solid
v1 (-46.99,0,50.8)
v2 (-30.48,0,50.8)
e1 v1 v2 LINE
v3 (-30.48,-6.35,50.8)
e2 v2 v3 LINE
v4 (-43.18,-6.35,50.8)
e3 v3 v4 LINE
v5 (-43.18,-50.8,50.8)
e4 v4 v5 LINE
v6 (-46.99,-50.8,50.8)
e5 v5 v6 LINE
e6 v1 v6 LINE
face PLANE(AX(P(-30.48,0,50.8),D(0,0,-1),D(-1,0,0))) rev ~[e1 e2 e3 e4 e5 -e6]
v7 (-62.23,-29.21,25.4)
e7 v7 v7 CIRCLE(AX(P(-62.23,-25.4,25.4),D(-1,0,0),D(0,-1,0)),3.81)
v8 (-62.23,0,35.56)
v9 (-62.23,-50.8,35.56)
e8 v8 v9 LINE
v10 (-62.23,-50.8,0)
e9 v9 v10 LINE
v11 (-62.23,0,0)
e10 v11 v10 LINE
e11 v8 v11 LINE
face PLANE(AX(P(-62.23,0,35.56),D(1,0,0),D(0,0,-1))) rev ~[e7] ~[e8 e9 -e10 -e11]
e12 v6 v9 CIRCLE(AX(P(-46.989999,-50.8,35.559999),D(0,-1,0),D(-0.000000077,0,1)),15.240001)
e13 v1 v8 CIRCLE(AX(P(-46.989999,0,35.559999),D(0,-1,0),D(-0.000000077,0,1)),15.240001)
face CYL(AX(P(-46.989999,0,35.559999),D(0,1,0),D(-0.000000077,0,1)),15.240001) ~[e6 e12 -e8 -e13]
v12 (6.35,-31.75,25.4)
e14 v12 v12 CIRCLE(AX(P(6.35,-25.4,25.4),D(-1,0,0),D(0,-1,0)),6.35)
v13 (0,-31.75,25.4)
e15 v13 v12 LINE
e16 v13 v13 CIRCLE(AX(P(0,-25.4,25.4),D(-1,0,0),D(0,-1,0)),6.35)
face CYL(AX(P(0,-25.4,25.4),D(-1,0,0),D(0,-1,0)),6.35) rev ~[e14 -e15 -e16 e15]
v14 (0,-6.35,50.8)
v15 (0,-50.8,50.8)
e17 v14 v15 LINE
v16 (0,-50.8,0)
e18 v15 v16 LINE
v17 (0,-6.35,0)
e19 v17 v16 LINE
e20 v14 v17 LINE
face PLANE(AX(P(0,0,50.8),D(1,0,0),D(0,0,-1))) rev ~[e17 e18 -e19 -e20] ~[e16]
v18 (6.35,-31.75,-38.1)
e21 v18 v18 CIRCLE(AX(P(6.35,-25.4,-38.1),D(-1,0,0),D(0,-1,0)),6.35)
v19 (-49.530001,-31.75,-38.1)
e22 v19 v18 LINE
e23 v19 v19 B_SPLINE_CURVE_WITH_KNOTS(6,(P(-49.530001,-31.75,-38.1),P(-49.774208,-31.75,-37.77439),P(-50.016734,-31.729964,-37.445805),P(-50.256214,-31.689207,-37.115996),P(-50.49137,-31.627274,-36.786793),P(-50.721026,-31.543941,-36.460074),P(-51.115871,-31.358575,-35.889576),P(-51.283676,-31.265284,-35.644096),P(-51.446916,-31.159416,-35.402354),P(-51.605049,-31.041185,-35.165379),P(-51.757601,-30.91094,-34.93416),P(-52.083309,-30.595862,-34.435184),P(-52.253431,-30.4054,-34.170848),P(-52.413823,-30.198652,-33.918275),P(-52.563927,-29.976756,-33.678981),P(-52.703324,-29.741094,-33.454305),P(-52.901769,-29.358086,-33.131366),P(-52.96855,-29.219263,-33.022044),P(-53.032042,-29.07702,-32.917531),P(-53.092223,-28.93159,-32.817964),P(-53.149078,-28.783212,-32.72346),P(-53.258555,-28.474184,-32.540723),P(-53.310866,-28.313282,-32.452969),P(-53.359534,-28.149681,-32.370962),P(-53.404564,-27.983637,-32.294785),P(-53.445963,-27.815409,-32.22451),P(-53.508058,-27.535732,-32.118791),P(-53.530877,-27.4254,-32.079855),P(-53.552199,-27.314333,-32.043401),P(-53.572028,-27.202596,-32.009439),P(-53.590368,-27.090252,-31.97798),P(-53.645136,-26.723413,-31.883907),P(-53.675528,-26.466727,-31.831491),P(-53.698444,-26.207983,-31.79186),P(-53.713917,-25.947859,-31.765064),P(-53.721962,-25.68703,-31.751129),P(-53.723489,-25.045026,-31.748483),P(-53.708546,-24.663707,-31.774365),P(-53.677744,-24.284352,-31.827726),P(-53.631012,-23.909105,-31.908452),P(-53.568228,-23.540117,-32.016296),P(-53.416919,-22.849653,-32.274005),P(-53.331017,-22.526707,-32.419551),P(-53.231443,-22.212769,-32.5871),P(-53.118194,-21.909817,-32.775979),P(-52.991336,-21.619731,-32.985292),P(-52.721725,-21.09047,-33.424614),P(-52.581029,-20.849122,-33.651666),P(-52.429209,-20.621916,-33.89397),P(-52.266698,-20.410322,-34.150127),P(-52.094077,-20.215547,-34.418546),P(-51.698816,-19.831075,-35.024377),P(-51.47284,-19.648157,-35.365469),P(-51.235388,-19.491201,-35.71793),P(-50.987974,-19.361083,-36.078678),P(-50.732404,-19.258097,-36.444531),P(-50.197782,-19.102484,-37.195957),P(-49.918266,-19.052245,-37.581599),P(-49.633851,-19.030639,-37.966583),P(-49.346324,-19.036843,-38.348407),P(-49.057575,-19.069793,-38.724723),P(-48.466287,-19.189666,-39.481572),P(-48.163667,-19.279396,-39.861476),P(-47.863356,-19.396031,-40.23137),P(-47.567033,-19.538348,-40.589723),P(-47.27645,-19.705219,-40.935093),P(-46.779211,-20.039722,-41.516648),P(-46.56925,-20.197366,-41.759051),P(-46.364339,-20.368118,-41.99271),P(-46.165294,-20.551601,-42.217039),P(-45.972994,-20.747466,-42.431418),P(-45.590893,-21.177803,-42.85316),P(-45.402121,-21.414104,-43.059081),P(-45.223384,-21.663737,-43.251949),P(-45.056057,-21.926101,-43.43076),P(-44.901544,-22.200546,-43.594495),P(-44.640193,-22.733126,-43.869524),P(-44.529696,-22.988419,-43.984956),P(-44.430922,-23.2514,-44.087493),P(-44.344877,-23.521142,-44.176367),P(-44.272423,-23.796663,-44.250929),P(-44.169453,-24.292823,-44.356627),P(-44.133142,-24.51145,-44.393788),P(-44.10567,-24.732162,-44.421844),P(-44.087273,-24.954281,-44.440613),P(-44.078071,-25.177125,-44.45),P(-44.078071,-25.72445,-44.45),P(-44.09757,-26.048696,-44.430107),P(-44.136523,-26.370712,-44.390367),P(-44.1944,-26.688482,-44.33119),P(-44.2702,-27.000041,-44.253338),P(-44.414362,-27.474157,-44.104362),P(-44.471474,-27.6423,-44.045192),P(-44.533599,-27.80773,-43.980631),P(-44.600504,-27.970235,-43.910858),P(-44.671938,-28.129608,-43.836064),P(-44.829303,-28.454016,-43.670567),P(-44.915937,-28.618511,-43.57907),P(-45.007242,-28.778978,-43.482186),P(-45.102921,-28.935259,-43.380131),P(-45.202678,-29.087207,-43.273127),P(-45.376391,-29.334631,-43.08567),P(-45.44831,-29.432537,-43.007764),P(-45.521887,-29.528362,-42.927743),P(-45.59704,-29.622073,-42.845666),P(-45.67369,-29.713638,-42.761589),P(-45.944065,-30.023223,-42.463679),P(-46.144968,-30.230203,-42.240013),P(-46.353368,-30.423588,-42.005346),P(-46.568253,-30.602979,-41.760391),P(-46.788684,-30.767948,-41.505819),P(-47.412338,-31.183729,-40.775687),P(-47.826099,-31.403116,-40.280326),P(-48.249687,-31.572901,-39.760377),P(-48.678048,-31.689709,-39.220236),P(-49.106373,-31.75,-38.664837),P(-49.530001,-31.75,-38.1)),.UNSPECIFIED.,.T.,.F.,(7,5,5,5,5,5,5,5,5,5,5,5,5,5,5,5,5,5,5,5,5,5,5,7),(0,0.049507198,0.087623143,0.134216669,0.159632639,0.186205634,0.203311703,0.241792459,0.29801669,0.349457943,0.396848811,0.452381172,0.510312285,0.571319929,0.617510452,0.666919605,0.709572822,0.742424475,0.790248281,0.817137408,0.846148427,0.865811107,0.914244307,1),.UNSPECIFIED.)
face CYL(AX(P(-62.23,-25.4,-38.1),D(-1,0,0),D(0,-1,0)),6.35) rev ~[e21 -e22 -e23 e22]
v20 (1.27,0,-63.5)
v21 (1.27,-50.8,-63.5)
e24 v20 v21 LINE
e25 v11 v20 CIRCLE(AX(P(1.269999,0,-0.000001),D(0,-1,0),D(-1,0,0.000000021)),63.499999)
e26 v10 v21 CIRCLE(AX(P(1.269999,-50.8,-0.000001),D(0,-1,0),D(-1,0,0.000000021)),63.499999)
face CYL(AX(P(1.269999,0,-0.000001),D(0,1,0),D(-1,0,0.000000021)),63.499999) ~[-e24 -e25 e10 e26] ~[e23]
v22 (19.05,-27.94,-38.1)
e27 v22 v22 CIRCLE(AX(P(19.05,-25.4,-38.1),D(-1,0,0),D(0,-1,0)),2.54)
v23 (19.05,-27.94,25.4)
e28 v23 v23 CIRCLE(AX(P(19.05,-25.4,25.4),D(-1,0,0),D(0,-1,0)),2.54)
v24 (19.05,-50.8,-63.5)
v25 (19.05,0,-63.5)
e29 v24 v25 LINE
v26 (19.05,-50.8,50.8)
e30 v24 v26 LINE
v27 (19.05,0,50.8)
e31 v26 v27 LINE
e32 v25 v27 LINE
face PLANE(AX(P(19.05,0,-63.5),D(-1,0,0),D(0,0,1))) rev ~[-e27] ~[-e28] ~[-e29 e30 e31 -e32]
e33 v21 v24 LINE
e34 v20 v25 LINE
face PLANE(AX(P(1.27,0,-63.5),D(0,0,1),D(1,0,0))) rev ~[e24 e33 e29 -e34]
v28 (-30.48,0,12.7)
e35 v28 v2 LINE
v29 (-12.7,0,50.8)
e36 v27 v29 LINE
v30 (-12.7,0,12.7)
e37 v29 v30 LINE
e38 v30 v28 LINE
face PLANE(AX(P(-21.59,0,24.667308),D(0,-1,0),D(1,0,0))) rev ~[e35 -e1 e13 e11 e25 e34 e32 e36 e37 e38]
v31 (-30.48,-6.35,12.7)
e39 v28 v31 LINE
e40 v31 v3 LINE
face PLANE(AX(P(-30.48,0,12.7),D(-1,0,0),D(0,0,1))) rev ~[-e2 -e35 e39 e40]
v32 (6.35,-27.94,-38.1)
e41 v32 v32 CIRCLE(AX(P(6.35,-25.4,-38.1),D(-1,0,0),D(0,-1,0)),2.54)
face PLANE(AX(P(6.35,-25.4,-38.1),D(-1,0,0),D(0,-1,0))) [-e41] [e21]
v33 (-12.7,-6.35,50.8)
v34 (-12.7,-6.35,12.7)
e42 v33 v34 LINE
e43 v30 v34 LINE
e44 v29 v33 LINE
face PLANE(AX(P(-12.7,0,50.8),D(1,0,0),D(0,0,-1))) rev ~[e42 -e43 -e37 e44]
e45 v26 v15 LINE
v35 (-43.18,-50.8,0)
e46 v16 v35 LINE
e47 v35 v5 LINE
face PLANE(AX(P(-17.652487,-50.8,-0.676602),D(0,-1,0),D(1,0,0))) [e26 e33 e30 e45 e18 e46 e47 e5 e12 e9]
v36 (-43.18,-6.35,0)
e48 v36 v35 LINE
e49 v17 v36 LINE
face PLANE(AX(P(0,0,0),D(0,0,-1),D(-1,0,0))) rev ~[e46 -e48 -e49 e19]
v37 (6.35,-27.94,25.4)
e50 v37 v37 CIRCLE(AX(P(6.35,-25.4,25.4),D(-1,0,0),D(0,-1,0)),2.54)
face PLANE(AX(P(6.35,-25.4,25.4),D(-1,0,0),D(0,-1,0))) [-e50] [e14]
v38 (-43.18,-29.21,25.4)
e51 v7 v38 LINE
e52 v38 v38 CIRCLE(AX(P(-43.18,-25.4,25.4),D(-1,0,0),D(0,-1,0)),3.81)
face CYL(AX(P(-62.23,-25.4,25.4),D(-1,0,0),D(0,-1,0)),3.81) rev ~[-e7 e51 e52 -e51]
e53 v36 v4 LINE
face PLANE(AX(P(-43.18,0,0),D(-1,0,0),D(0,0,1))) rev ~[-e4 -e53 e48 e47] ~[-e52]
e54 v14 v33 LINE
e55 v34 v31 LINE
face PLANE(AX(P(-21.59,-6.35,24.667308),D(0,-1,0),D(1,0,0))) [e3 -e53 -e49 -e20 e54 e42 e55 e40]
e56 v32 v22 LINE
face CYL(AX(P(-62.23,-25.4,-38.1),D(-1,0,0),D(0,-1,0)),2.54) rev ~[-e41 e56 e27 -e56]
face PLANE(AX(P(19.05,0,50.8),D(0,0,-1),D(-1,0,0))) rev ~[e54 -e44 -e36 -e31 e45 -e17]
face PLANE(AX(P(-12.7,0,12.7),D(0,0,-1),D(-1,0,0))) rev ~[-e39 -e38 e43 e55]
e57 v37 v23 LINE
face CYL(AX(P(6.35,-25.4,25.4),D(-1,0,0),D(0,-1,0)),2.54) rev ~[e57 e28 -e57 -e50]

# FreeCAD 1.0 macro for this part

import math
import FreeCAD as App
import Part
import Sketcher

V = App.Vector
Q = App.Units.Quantity

doc = App.newDocument("Part")
body = doc.addObject("PartDesign::Body", "Body")

# Sketch on XZ plane
sketch1 = body.newObject("Sketcher::SketchObject", "Sketch")
sketch1.AttachmentSupport = (doc.getObject("XZ_Plane"), [""])
sketch1.MapMode = "FlatFace"
sketch1.addGeometry([
    Part.LineSegment(V(0, 50.8, 0), V(0, 0, 0)),  # 0
    Part.LineSegment(V(0, 0, 0), V(-43.18, 0, 0)),  # 1
    Part.LineSegment(V(-43.18, 0, 0), V(-43.18, 50.8, 0)),  # 2
    Part.LineSegment(V(-43.18, 50.8, 0), V(-46.99, 50.8, 0)),  # 3
    Part.ArcOfCircle(Part.Circle(V(-46.989999, 35.559999, 0), V(0, 0, 1), 15.240001), math.radians(90.000004), math.radians(179.999996)),  # 4
    Part.LineSegment(V(-62.23, 35.56, 0), V(-62.23, 0, 0)),  # 5
    Part.ArcOfCircle(Part.Circle(V(1.269999, -0.000001, 0), V(0, 0, 1), 63.499999), math.radians(179.999999), math.radians(270.000001)),  # 6
    Part.LineSegment(V(1.27, -63.5, 0), V(19.05, -63.5, 0)),  # 7
    Part.LineSegment(V(19.05, -63.5, 0), V(19.05, 50.8, 0)),  # 8
    Part.LineSegment(V(19.05, 50.8, 0), V(0, 50.8, 0)),  # 9
], False)
sketch1.addConstraint([
    Sketcher.Constraint("Coincident", 0, 2, 1, 1),
    Sketcher.Constraint("Coincident", 1, 2, 2, 1),
    Sketcher.Constraint("Coincident", 2, 2, 3, 1),
    Sketcher.Constraint("Tangent", 3, 2, 4, 1),
    Sketcher.Constraint("Tangent", 4, 2, 5, 1),
    Sketcher.Constraint("Tangent", 5, 2, 6, 1),
    Sketcher.Constraint("Tangent", 6, 2, 7, 1),
    Sketcher.Constraint("Coincident", 7, 2, 8, 1),
    Sketcher.Constraint("Coincident", 8, 2, 9, 1),
    Sketcher.Constraint("Coincident", 9, 2, 0, 1),
    Sketcher.Constraint("Vertical", 0),
    Sketcher.Constraint("Horizontal", 1),
    Sketcher.Constraint("Vertical", 2),
    Sketcher.Constraint("Horizontal", 3),
    Sketcher.Constraint("Vertical", 5),
    Sketcher.Constraint("Horizontal", 7),
    Sketcher.Constraint("Vertical", 8),
    Sketcher.Constraint("Horizontal", 9),
    Sketcher.Constraint("Coincident", 0, 2, -1, 1),
    Sketcher.Constraint("PointOnObject", 6, 3, -1),
    Sketcher.Constraint("Horizontal", 3, 2, 8, 2),
    Sketcher.Constraint("Radius", 4, Q("0.6 in")),
    Sketcher.Constraint("Radius", 6, Q("2.4999999 in")),
    Sketcher.Constraint("DistanceY", 0, 2, 0, 1, Q("2 in")),
    Sketcher.Constraint("DistanceX", 1, 2, 1, 1, Q("1.7 in")),
    Sketcher.Constraint("DistanceX", 7, 1, 7, 2, Q("0.7 in")),
    Sketcher.Constraint("DistanceX", 3, 2, 3, 1, Q("0.15 in")),
])
pad1 = body.newObject("PartDesign::Pad", "Pad")
pad1.Profile = sketch1
pad1.Length = Q("2 in")

# Sketch on XZ plane
sketch2 = body.newObject("Sketcher::SketchObject", "Sketch001")
sketch2.AttachmentSupport = (doc.getObject("XZ_Plane"), [""])
sketch2.MapMode = "FlatFace"
sketch2.addGeometry([
    Part.LineSegment(V(-12.7, 50.8, 0), V(-12.7, 12.7, 0)),  # 0
    Part.LineSegment(V(-12.7, 12.7, 0), V(-30.48, 12.7, 0)),  # 1
    Part.LineSegment(V(-30.48, 12.7, 0), V(-30.48, 50.8, 0)),  # 2
    Part.LineSegment(V(-30.48, 50.8, 0), V(-46.99, 50.8, 0)),  # 3
    Part.ArcOfCircle(Part.Circle(V(-46.989999, 35.559999, 0), V(0, 0, 1), 15.240001), math.radians(90.000004), math.radians(179.999996)),  # 4
    Part.LineSegment(V(-62.23, 35.56, 0), V(-62.23, 0, 0)),  # 5
    Part.ArcOfCircle(Part.Circle(V(1.269999, -0.000001, 0), V(0, 0, 1), 63.499999), math.radians(179.999999), math.radians(270.000001)),  # 6
    Part.LineSegment(V(1.27, -63.5, 0), V(19.05, -63.5, 0)),  # 7
    Part.LineSegment(V(19.05, -63.5, 0), V(19.05, 50.8, 0)),  # 8
    Part.LineSegment(V(19.05, 50.8, 0), V(-12.7, 50.8, 0)),  # 9
], False)
sketch2.addConstraint([
    Sketcher.Constraint("Coincident", 0, 2, 1, 1),
    Sketcher.Constraint("Coincident", 1, 2, 2, 1),
    Sketcher.Constraint("Coincident", 2, 2, 3, 1),
    Sketcher.Constraint("Tangent", 3, 2, 4, 1),
    Sketcher.Constraint("Tangent", 4, 2, 5, 1),
    Sketcher.Constraint("Tangent", 5, 2, 6, 1),
    Sketcher.Constraint("Tangent", 6, 2, 7, 1),
    Sketcher.Constraint("Coincident", 7, 2, 8, 1),
    Sketcher.Constraint("Coincident", 8, 2, 9, 1),
    Sketcher.Constraint("Coincident", 9, 2, 0, 1),
    Sketcher.Constraint("Vertical", 0),
    Sketcher.Constraint("Horizontal", 1),
    Sketcher.Constraint("Vertical", 2),
    Sketcher.Constraint("Horizontal", 3),
    Sketcher.Constraint("Vertical", 5),
    Sketcher.Constraint("Horizontal", 7),
    Sketcher.Constraint("Vertical", 8),
    Sketcher.Constraint("Horizontal", 9),
    Sketcher.Constraint("PointOnObject", 6, 3, -1),
    Sketcher.Constraint("Horizontal", 3, 2, 8, 2),
    Sketcher.Constraint("Equal", 1, 7),
    Sketcher.Constraint("Radius", 4, Q("0.6 in")),
    Sketcher.Constraint("Radius", 6, Q("2.4999999 in")),
    Sketcher.Constraint("DistanceX", 1, 2, 1, 1, Q("0.7 in")),
    Sketcher.Constraint("DistanceY", 0, 2, 0, 1, Q("1.5 in")),
    Sketcher.Constraint("DistanceY", 5, 2, 5, 1, Q("1.4 in")),
    Sketcher.Constraint("DistanceX", 3, 2, 3, 1, Q("0.65 in")),
    Sketcher.Constraint("DistanceX", 0, 2, -1, 1, Q("0.5 in")),
])
pad2 = body.newObject("PartDesign::Pad", "Pad001")
pad2.Profile = sketch2
pad2.Length = Q("0.25 in")

# Sketch on YZ plane
sketch3 = body.newObject("Sketcher::SketchObject", "Sketch002")
sketch3.AttachmentSupport = (doc.getObject("YZ_Plane"), [""])
sketch3.MapMode = "FlatFace"
sketch3.AttachmentOffset = App.Placement(V(0, 0, -2.45 * 25.4), App.Rotation())
sketch3.addGeometry(Part.Circle(V(-25.4, 25.4, 0), V(0, 0, 1), 3.81), False)
sketch3.addConstraint([
    Sketcher.Constraint("Diameter", 0, Q("0.3 in")),
    Sketcher.Constraint("DistanceX", 0, 3, -1, 1, Q("1 in")),
    Sketcher.Constraint("DistanceY", -1, 1, 0, 3, Q("1 in")),
])
pocket1 = body.newObject("PartDesign::Pocket", "Pocket")
pocket1.Profile = sketch3
pocket1.Length = Q("0.75 in")
pocket1.Reversed = True

# Sketch on YZ plane
sketch4 = body.newObject("Sketcher::SketchObject", "Sketch003")
sketch4.AttachmentSupport = (doc.getObject("YZ_Plane"), [""])
sketch4.MapMode = "FlatFace"
sketch4.addGeometry(Part.Circle(V(-25.4, 25.4, 0), V(0, 0, 1), 6.35), False)
sketch4.addConstraint([
    Sketcher.Constraint("Diameter", 0, Q("0.5 in")),
    Sketcher.Constraint("DistanceX", 0, 3, -1, 1, Q("1 in")),
    Sketcher.Constraint("DistanceY", -1, 1, 0, 3, Q("1 in")),
])
pocket2 = body.newObject("PartDesign::Pocket", "Pocket001")
pocket2.Profile = sketch4
pocket2.Length = Q("0.25 in")
pocket2.Reversed = True

# Sketch on YZ plane
sketch5 = body.newObject("Sketcher::SketchObject", "Sketch004")
sketch5.AttachmentSupport = (doc.getObject("YZ_Plane"), [""])
sketch5.MapMode = "FlatFace"
sketch5.AttachmentOffset = App.Placement(V(0, 0, 0.25 * 25.4), App.Rotation())
sketch5.addGeometry(Part.Circle(V(-25.4, 25.4, 0), V(0, 0, 1), 2.54), False)
sketch5.addConstraint([
    Sketcher.Constraint("Diameter", 0, Q("0.2 in")),
    Sketcher.Constraint("DistanceX", 0, 3, -1, 1, Q("1 in")),
    Sketcher.Constraint("DistanceY", -1, 1, 0, 3, Q("1 in")),
])
pocket3 = body.newObject("PartDesign::Pocket", "Pocket002")
pocket3.Profile = sketch5
pocket3.Type = "ThroughAll"
pocket3.Reversed = True

# Sketch on YZ plane
sketch6 = body.newObject("Sketcher::SketchObject", "Sketch005")
sketch6.AttachmentSupport = (doc.getObject("YZ_Plane"), [""])
sketch6.MapMode = "FlatFace"
sketch6.AttachmentOffset = App.Placement(V(0, 0, -2.45 * 25.4), App.Rotation())
sketch6.addGeometry(Part.Circle(V(-25.4, -38.1, 0), V(0, 0, 1), 2.54), False)
sketch6.addConstraint([
    Sketcher.Constraint("Diameter", 0, Q("0.2 in")),
    Sketcher.Constraint("DistanceX", 0, 3, -1, 1, Q("1 in")),
    Sketcher.Constraint("DistanceY", 0, 3, -1, 1, Q("1.5 in")),
])
pocket4 = body.newObject("PartDesign::Pocket", "Pocket003")
pocket4.Profile = sketch6
pocket4.Type = "ThroughAll"
pocket4.Reversed = True

# Sketch on YZ plane
sketch7 = body.newObject("Sketcher::SketchObject", "Sketch006")
sketch7.AttachmentSupport = (doc.getObject("YZ_Plane"), [""])
sketch7.MapMode = "FlatFace"
sketch7.AttachmentOffset = App.Placement(V(0, 0, -2.45 * 25.4), App.Rotation())
sketch7.addGeometry([
    Part.Circle(V(-25.4, -38.1, 0), V(0, 0, 1), 6.35),
    Part.Circle(V(-25.4, -38.1, 0), V(0, 0, 1), 2.54),
], False)
sketch7.addConstraint([
    Sketcher.Constraint("Coincident", 1, 3, 0, 3),
    Sketcher.Constraint("Diameter", 0, Q("0.5 in")),
    Sketcher.Constraint("Diameter", 1, Q("0.2 in")),
    Sketcher.Constraint("DistanceX", 0, 3, -1, 1, Q("1 in")),
    Sketcher.Constraint("DistanceY", 0, 3, -1, 1, Q("1.5 in")),
])
pocket5 = body.newObject("PartDesign::Pocket", "Pocket004")
pocket5.Profile = sketch7
pocket5.Length = Q("2.7 in")
pocket5.Reversed = True

doc.recompute()
